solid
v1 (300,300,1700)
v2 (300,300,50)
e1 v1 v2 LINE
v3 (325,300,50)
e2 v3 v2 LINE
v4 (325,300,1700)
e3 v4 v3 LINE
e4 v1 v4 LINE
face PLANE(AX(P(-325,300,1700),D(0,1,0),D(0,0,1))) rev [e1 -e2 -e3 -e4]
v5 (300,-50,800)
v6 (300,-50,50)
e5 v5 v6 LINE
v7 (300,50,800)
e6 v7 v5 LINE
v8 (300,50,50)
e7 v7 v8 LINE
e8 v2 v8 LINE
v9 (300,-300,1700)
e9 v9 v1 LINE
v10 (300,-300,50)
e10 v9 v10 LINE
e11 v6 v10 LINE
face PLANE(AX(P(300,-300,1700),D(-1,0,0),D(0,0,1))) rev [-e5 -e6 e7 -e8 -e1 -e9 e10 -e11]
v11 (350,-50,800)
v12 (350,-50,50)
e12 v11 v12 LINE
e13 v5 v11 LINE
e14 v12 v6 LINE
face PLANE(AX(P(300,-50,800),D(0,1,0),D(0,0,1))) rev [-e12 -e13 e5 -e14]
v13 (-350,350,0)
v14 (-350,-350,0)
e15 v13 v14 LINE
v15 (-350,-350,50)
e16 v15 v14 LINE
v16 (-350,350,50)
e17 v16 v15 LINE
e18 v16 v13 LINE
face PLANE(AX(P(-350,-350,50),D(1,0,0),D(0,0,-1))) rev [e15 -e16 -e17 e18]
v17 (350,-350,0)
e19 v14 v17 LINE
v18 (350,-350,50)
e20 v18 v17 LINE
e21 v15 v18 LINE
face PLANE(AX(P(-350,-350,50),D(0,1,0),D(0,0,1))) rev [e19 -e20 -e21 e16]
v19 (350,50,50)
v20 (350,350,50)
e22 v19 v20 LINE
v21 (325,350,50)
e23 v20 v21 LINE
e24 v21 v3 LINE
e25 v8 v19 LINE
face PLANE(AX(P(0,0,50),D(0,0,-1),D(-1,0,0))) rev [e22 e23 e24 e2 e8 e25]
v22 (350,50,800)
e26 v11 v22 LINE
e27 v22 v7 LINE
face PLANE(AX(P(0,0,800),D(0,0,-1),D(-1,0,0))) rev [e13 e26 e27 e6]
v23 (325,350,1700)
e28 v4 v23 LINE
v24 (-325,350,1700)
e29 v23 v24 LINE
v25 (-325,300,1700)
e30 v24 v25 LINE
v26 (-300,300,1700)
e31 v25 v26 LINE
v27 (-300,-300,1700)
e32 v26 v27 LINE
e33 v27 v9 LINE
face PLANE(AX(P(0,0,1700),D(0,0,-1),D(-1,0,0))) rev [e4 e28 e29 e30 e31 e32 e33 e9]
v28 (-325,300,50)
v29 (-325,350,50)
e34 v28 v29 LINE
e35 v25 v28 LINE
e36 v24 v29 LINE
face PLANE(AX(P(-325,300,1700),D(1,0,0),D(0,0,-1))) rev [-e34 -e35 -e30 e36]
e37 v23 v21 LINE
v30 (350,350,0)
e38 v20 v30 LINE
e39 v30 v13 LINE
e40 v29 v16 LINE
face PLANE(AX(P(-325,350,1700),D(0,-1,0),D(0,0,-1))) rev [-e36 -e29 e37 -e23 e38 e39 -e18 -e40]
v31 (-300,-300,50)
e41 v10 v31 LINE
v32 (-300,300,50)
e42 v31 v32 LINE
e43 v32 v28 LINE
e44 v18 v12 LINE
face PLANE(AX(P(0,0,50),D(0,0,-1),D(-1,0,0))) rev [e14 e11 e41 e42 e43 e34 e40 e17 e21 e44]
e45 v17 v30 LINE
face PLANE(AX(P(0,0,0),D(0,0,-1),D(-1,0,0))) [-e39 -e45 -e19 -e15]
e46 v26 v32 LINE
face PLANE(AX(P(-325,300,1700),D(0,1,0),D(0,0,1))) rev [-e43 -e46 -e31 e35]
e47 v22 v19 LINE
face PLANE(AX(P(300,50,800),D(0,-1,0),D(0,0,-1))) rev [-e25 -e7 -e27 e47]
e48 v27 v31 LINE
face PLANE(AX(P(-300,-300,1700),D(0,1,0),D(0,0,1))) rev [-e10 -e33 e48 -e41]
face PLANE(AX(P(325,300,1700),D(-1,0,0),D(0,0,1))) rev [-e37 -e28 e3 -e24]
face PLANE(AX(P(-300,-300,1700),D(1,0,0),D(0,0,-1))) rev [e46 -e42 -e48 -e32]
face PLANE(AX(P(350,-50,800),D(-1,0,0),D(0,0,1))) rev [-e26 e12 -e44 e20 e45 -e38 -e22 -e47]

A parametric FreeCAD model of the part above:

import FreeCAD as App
import Part
import Sketcher

V = App.Vector
Q = App.Units.Quantity


def add_polygon(sketch, points):
    """Adds a closed chain of lines whose ends are joined by coincident constraints."""
    first, n = sketch.GeometryCount, len(points)
    for a, b in zip(points, points[1:] + points[:1]):
        sketch.addGeometry(Part.LineSegment(App.Vector(*a, 0), App.Vector(*b, 0)), False)
    for i in range(n):
        sketch.addConstraint(Sketcher.Constraint("Coincident", first + i, 2, first + (i + 1) % n, 1))

doc = App.newDocument("Part")
body = doc.addObject("PartDesign::Body", "Body")

# Sketch on XY plane
sketch1 = body.newObject("Sketcher::SketchObject", "Sketch")
sketch1.AttachmentSupport = (doc.getObject("XY_Plane"), [""])
sketch1.MapMode = "FlatFace"
add_polygon(sketch1, [(-300, 300), (-300, -300), (300, -300), (300, 300)])  # lines 0-3
sketch1.addConstraint([
    Sketcher.Constraint("Vertical", 0),
    Sketcher.Constraint("Horizontal", 1),
    Sketcher.Constraint("Vertical", 2),
    Sketcher.Constraint("Horizontal", 3),
    Sketcher.Constraint("Symmetric", 0, 2, 2, 2, -1, 1),
    Sketcher.Constraint("Equal", 3, 0),
    Sketcher.Constraint("DistanceX", 1, 1, 1, 2, Q("600 mm")),
])
pad1 = body.newObject("PartDesign::Pad", "Pad")
pad1.Profile = sketch1
pad1.Length = 1700

# Sketch on XY plane
sketch2 = body.newObject("Sketcher::SketchObject", "Sketch001")
sketch2.AttachmentSupport = (doc.getObject("XY_Plane"), [""])
sketch2.MapMode = "FlatFace"
add_polygon(sketch2, [(-325, 350), (-325, 300), (325, 300), (325, 350)])  # lines 0-3
sketch2.addConstraint([
    Sketcher.Constraint("Vertical", 0),
    Sketcher.Constraint("Horizontal", 1),
    Sketcher.Constraint("Vertical", 2),
    Sketcher.Constraint("Horizontal", 3),
    Sketcher.Constraint("DistanceX", 1, 1, 1, 2, Q("650 mm")),
    Sketcher.Constraint("DistanceY", 0, 2, 0, 1, Q("50 mm")),
    Sketcher.Constraint("DistanceX", 0, 2, -1, 1, Q("325 mm")),
    Sketcher.Constraint("DistanceY", -1, 1, 0, 2, Q("300 mm")),
])
pad2 = body.newObject("PartDesign::Pad", "Pad001")
pad2.Profile = sketch2
pad2.Length = 1700

# Sketch on XY plane
sketch3 = body.newObject("Sketcher::SketchObject", "Sketch002")
sketch3.AttachmentSupport = (doc.getObject("XY_Plane"), [""])
sketch3.MapMode = "FlatFace"
add_polygon(sketch3, [(300, 50), (300, -50), (350, -50), (350, 50)])  # lines 0-3
sketch3.addConstraint([
    Sketcher.Constraint("Vertical", 0),
    Sketcher.Constraint("Horizontal", 1),
    Sketcher.Constraint("Vertical", 2),
    Sketcher.Constraint("Horizontal", 3),
    Sketcher.Constraint("DistanceX", 1, 1, 1, 2, Q("50 mm")),
    Sketcher.Constraint("DistanceY", 0, 2, 0, 1, Q("100 mm")),
    Sketcher.Constraint("DistanceX", -1, 1, 0, 2, Q("300 mm")),
    Sketcher.Constraint("DistanceY", 0, 2, -1, 1, Q("50 mm")),
])
pad3 = body.newObject("PartDesign::Pad", "Pad002")
pad3.Profile = sketch3
pad3.Length = 800

# Sketch on XY plane
sketch4 = body.newObject("Sketcher::SketchObject", "Sketch003")
sketch4.AttachmentSupport = (doc.getObject("XY_Plane"), [""])
sketch4.MapMode = "FlatFace"
add_polygon(sketch4, [(-350, 350), (-350, -350), (350, -350), (350, 350)])  # lines 0-3
sketch4.addConstraint([
    Sketcher.Constraint("Vertical", 0),
    Sketcher.Constraint("Horizontal", 1),
    Sketcher.Constraint("Vertical", 2),
    Sketcher.Constraint("Horizontal", 3),
    Sketcher.Constraint("Symmetric", 0, 2, 2, 2, -1, 1),
    Sketcher.Constraint("Equal", 3, 0),
    Sketcher.Constraint("DistanceX", 1, 1, 1, 2, Q("700 mm")),
])
pad4 = body.newObject("PartDesign::Pad", "Pad003")
pad4.Profile = sketch4
pad4.Length = 50

doc.recompute()
